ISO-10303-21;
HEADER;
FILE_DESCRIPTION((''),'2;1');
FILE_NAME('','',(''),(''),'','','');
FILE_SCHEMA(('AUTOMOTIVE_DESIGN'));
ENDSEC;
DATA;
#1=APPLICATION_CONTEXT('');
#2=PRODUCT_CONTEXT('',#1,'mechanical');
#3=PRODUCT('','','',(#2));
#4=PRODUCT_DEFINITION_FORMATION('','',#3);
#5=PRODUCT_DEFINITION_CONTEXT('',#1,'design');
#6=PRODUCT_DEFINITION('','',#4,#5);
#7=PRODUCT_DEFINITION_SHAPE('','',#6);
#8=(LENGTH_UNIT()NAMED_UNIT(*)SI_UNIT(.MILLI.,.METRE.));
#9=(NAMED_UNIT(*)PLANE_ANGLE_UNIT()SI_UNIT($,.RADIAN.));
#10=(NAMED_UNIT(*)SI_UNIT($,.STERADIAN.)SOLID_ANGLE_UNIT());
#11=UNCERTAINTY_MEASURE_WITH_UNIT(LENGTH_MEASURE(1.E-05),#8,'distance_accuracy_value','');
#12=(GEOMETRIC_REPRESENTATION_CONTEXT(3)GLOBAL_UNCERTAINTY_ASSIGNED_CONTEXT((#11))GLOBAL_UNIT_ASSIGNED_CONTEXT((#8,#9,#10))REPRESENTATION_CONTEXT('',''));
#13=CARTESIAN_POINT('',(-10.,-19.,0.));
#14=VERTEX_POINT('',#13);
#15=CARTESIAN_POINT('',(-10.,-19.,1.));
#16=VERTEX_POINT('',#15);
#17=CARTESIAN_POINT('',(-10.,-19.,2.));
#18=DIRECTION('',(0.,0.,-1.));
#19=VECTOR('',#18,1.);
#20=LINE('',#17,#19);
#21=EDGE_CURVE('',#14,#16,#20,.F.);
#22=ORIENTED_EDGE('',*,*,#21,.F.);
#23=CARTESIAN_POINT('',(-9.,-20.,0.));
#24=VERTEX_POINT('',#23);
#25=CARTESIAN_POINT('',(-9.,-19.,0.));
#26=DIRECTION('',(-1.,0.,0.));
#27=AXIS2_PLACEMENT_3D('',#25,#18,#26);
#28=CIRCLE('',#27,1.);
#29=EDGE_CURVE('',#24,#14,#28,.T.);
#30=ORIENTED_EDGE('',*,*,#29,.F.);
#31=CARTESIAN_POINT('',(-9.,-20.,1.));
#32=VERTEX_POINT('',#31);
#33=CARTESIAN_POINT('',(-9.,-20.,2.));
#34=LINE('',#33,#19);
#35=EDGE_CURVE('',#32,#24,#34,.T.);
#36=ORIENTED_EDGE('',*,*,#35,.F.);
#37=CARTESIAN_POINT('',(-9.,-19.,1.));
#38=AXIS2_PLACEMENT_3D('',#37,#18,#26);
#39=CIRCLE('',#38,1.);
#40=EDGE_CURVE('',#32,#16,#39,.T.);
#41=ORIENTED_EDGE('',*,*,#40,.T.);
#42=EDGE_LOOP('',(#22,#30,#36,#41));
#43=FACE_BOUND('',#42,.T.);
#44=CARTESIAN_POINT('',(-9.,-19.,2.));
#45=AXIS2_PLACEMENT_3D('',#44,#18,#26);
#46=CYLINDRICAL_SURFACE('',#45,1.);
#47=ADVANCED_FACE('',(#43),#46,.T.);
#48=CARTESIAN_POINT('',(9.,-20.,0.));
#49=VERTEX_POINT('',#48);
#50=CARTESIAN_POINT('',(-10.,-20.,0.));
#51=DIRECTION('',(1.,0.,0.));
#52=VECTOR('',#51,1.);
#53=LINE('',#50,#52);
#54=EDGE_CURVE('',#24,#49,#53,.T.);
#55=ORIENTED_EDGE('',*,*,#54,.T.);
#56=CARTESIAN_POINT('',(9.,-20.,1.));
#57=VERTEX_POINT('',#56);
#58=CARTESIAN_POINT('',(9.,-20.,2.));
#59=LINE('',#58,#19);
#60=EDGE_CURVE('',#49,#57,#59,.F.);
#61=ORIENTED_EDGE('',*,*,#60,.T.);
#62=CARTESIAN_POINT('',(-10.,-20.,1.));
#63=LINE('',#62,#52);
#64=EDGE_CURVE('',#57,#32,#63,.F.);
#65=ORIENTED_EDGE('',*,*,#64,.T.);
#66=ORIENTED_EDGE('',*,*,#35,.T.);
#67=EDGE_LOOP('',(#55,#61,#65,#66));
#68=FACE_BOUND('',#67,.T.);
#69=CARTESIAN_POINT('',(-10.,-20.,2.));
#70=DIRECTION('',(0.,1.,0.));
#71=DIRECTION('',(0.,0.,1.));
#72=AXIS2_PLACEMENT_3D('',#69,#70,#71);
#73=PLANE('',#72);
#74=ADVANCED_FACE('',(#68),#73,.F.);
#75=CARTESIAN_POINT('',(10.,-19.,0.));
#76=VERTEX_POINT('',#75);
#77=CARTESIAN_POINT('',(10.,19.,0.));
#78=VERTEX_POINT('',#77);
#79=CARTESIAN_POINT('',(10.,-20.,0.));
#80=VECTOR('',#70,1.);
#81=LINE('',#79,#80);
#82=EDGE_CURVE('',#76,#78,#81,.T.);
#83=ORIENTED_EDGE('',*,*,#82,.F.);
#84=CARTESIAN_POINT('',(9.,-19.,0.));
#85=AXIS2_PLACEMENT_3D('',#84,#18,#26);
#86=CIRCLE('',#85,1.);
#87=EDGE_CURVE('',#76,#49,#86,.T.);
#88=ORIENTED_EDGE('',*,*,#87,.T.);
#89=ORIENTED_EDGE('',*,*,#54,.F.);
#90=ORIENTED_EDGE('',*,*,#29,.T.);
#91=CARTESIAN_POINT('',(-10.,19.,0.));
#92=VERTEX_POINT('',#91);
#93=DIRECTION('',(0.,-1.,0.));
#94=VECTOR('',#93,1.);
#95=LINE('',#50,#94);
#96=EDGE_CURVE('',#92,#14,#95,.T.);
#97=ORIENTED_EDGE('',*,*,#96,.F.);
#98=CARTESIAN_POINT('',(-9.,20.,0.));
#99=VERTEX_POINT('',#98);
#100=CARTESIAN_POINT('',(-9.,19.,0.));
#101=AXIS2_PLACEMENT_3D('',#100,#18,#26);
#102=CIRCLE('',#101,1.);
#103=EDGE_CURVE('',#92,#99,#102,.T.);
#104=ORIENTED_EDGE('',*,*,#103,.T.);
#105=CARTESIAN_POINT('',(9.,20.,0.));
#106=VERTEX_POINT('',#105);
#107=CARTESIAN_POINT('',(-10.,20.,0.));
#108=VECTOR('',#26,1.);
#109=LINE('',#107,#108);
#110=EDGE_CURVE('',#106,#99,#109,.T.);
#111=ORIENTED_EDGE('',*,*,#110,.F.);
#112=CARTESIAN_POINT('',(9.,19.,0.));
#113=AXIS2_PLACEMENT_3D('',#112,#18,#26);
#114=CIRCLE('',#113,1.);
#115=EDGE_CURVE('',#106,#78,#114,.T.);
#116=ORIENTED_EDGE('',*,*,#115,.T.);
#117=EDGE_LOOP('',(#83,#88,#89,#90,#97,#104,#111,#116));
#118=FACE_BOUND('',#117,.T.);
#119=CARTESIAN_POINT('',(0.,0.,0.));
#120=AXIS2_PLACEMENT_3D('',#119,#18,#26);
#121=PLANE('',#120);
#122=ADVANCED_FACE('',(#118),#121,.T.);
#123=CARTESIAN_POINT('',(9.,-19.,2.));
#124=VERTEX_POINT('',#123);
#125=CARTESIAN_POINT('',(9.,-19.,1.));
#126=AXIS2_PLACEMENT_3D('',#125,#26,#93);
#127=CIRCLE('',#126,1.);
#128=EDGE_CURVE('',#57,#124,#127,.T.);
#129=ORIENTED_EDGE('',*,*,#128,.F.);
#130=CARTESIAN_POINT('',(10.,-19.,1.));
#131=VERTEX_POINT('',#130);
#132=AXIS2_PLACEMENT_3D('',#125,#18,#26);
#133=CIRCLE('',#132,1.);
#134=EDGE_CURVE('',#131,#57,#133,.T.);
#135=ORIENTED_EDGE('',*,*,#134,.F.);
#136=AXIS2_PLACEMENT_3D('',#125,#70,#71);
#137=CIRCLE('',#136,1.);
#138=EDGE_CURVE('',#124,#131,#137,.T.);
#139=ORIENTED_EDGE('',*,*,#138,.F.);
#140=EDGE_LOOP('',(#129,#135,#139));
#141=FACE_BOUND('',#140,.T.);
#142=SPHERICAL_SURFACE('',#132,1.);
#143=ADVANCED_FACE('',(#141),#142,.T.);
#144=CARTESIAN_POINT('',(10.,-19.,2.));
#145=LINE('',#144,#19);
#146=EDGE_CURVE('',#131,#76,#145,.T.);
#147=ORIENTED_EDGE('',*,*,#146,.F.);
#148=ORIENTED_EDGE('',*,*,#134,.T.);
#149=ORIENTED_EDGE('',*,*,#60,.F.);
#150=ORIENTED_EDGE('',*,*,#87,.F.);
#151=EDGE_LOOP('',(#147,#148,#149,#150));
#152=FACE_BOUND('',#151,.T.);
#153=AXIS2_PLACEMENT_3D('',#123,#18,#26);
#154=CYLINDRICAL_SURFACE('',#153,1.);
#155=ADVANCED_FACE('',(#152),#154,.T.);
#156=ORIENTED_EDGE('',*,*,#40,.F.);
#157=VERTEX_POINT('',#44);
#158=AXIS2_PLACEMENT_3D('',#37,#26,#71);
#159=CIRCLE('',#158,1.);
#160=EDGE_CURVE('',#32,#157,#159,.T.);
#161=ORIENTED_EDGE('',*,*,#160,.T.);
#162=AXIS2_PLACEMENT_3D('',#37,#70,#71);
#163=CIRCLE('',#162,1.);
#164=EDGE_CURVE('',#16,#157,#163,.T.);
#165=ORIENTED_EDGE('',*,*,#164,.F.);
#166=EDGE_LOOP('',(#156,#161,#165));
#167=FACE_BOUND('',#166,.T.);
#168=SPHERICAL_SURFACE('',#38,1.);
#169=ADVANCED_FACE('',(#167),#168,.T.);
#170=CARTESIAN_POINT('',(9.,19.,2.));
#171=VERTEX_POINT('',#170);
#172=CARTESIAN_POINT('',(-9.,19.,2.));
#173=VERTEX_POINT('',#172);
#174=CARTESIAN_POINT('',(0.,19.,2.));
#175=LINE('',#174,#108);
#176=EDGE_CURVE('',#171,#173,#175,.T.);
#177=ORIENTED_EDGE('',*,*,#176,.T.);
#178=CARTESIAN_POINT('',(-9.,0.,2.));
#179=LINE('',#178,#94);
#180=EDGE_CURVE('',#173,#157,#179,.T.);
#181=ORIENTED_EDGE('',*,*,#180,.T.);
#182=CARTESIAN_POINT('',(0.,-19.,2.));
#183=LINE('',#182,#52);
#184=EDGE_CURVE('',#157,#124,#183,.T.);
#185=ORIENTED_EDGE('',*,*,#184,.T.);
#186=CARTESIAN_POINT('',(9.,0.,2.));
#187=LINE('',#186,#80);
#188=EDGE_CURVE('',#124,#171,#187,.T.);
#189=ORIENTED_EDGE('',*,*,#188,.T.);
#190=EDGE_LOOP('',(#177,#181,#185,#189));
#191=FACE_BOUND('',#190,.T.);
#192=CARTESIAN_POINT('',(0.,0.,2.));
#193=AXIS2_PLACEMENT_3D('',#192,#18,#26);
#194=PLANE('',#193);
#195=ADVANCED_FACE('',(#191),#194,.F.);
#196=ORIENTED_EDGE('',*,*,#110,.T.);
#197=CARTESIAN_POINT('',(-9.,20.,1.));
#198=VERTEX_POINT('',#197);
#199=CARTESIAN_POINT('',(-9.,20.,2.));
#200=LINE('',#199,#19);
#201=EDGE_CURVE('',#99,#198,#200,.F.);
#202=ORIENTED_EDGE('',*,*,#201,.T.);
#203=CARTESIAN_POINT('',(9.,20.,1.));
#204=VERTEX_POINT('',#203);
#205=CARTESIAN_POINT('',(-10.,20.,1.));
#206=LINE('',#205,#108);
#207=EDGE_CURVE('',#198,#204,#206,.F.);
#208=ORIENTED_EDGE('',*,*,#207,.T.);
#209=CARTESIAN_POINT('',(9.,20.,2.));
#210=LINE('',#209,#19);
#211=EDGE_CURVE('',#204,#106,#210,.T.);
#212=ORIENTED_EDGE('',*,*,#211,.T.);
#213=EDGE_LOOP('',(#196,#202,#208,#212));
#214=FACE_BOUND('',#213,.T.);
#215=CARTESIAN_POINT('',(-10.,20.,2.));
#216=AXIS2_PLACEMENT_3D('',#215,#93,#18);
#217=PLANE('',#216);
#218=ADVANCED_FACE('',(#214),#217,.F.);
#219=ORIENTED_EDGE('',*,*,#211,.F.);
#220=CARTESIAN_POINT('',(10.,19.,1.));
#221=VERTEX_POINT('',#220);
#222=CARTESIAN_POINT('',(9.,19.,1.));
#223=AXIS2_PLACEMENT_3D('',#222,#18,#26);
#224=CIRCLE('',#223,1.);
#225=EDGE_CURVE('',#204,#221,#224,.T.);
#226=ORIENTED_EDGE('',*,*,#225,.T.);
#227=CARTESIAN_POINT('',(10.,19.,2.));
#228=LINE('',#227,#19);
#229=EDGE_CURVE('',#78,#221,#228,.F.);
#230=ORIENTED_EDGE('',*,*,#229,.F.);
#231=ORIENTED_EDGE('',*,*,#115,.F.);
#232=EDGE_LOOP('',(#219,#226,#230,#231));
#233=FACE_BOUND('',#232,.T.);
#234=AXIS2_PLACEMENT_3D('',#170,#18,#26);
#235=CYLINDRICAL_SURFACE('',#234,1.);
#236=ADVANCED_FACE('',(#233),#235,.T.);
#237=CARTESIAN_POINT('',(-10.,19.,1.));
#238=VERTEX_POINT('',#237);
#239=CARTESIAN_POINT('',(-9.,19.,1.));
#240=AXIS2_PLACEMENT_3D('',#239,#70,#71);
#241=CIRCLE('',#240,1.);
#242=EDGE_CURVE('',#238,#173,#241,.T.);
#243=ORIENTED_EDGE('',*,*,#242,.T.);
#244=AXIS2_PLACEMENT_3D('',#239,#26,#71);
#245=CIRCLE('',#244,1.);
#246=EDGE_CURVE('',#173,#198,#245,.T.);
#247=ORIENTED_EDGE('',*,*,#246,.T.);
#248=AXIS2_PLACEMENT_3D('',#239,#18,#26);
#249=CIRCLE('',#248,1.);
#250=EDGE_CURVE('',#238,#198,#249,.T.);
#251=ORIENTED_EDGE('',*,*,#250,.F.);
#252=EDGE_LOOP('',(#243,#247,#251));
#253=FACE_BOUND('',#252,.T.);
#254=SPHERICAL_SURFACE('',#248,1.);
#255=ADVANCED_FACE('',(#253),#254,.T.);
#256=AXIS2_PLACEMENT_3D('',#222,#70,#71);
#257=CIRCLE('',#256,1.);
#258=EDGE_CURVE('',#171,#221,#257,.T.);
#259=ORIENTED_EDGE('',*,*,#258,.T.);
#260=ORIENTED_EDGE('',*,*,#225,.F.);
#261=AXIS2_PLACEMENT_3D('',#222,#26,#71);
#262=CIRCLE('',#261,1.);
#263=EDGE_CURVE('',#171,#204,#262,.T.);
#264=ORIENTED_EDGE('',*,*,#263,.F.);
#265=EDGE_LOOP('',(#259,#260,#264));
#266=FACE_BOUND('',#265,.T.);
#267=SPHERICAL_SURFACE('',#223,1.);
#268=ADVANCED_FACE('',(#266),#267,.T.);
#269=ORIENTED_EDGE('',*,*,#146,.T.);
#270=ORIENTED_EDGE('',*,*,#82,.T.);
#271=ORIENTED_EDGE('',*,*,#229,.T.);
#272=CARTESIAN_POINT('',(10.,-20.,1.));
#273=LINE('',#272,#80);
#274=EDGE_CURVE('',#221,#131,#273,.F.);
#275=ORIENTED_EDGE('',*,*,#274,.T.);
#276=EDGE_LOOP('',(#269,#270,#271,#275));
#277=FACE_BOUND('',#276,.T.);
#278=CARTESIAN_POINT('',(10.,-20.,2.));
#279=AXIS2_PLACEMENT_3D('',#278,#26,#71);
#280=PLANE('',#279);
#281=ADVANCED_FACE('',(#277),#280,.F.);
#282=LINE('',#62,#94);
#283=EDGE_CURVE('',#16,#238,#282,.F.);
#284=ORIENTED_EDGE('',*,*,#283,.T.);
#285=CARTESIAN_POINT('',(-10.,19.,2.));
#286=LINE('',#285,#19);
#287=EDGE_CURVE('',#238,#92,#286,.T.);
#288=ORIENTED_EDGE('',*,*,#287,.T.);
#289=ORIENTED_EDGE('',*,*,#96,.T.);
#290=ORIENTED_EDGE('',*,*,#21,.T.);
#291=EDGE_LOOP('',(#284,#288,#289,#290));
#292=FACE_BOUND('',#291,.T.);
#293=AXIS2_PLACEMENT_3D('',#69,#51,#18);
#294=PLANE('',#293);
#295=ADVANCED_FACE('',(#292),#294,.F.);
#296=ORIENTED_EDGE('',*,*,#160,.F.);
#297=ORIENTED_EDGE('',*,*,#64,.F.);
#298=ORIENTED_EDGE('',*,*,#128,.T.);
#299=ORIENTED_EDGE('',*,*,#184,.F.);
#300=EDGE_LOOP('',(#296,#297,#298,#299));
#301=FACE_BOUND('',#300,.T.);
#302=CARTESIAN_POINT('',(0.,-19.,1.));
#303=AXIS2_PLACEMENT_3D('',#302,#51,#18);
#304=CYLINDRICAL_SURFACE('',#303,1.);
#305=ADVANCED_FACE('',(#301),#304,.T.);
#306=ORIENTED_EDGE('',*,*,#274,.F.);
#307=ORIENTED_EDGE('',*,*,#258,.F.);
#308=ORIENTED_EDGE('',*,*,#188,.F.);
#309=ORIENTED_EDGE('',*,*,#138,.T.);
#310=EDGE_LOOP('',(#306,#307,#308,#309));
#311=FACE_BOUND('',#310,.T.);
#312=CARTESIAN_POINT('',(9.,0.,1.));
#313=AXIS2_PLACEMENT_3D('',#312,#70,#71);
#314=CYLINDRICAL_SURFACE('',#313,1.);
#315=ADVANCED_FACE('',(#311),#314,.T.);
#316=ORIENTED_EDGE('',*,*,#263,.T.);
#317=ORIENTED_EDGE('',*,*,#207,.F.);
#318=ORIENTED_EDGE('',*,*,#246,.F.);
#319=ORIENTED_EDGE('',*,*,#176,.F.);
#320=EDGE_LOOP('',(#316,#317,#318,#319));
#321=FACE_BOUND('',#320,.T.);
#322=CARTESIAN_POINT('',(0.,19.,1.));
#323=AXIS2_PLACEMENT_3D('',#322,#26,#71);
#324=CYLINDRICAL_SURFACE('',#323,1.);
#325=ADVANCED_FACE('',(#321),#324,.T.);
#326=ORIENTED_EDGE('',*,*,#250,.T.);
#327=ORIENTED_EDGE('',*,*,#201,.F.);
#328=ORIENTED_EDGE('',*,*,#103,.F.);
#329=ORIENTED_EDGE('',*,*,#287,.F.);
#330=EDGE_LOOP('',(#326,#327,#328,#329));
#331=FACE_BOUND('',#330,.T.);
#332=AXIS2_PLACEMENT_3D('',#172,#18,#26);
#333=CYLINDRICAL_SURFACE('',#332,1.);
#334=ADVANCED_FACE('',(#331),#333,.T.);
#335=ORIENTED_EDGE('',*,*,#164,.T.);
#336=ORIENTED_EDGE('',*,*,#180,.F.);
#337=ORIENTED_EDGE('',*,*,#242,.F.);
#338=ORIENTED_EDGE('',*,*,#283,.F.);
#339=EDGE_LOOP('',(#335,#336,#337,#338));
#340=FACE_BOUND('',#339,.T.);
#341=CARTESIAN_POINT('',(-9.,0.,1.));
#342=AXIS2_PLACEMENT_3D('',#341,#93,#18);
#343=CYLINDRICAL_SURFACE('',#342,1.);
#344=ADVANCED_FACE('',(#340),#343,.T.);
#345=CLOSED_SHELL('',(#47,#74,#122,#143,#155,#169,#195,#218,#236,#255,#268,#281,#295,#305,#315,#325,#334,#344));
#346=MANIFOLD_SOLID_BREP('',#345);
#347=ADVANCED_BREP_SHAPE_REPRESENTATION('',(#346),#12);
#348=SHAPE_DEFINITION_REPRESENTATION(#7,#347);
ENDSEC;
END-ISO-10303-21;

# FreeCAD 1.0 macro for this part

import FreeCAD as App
import Part
import Sketcher

V = App.Vector
Q = App.Units.Quantity


def edges_at(feature, points):
    """Names of the edges that pass closest to the given points."""
    edges = feature.Shape.Edges
    near = lambda p: min(range(len(edges)), key=lambda i: edges[i].distToShape(Part.Vertex(*p))[0])
    return sorted({f"Edge{near(p) + 1}" for p in points})


def add_polygon(sketch, points):
    """Adds a closed chain of lines whose ends are joined by coincident constraints."""
    first, n = sketch.GeometryCount, len(points)
    for a, b in zip(points, points[1:] + points[:1]):
        sketch.addGeometry(Part.LineSegment(App.Vector(*a, 0), App.Vector(*b, 0)), False)
    for i in range(n):
        sketch.addConstraint(Sketcher.Constraint("Coincident", first + i, 2, first + (i + 1) % n, 1))

doc = App.newDocument("Part")
body = doc.addObject("PartDesign::Body", "Body")

sketch1 = doc.addObject("Sketcher::SketchObject", "Sketch")
body.addObject(sketch1)
sketch1.AttachmentSupport = (doc.XY_Plane, [""])
sketch1.MapMode = "FlatFace"
add_polygon(sketch1, [(-10, 20), (-10, -20), (10, -20), (10, 20)])
sketch1.addConstraint([
    Sketcher.Constraint("Vertical", 0),
    Sketcher.Constraint("Horizontal", 1),
    Sketcher.Constraint("Vertical", 2),
    Sketcher.Constraint("Horizontal", 3),
    Sketcher.Constraint("Symmetric", 0, 2, 2, 2, -1, 1),
    Sketcher.Constraint("DistanceX", 1, 1, 1, 2, Q("20 mm")),
    Sketcher.Constraint("DistanceY", 0, 2, 0, 1, Q("40 mm")),
])
pad1 = doc.addObject("PartDesign::Pad", "Pad")
body.addObject(pad1)
pad1.Profile = sketch1
pad1.Length = 2
doc.recompute()

fillet = doc.addObject("PartDesign::Fillet", "Fillet")
body.addObject(fillet)
fillet.Base = (pad1, edges_at(pad1, [
    (10, -20, 1),
    (-10, -20, 1),
    (-10, 20, 1),
    (10, 20, 1),
]))
fillet.Radius = 1
doc.recompute()

fillet2 = doc.addObject("PartDesign::Fillet", "Fillet001")
body.addObject(fillet2)
fillet2.Base = (fillet, edges_at(fillet, [
    (0, -20, 2),
    (-10, 0, 2),
    (10, 0, 2),
    (0, 20, 2),
    (9.707, -19.707, 2),
    (9.707, 19.707, 2),
    (-9.707, 19.707, 2),
    (-9.707, -19.707, 2),
]))
fillet2.Radius = 1

doc.recompute()
